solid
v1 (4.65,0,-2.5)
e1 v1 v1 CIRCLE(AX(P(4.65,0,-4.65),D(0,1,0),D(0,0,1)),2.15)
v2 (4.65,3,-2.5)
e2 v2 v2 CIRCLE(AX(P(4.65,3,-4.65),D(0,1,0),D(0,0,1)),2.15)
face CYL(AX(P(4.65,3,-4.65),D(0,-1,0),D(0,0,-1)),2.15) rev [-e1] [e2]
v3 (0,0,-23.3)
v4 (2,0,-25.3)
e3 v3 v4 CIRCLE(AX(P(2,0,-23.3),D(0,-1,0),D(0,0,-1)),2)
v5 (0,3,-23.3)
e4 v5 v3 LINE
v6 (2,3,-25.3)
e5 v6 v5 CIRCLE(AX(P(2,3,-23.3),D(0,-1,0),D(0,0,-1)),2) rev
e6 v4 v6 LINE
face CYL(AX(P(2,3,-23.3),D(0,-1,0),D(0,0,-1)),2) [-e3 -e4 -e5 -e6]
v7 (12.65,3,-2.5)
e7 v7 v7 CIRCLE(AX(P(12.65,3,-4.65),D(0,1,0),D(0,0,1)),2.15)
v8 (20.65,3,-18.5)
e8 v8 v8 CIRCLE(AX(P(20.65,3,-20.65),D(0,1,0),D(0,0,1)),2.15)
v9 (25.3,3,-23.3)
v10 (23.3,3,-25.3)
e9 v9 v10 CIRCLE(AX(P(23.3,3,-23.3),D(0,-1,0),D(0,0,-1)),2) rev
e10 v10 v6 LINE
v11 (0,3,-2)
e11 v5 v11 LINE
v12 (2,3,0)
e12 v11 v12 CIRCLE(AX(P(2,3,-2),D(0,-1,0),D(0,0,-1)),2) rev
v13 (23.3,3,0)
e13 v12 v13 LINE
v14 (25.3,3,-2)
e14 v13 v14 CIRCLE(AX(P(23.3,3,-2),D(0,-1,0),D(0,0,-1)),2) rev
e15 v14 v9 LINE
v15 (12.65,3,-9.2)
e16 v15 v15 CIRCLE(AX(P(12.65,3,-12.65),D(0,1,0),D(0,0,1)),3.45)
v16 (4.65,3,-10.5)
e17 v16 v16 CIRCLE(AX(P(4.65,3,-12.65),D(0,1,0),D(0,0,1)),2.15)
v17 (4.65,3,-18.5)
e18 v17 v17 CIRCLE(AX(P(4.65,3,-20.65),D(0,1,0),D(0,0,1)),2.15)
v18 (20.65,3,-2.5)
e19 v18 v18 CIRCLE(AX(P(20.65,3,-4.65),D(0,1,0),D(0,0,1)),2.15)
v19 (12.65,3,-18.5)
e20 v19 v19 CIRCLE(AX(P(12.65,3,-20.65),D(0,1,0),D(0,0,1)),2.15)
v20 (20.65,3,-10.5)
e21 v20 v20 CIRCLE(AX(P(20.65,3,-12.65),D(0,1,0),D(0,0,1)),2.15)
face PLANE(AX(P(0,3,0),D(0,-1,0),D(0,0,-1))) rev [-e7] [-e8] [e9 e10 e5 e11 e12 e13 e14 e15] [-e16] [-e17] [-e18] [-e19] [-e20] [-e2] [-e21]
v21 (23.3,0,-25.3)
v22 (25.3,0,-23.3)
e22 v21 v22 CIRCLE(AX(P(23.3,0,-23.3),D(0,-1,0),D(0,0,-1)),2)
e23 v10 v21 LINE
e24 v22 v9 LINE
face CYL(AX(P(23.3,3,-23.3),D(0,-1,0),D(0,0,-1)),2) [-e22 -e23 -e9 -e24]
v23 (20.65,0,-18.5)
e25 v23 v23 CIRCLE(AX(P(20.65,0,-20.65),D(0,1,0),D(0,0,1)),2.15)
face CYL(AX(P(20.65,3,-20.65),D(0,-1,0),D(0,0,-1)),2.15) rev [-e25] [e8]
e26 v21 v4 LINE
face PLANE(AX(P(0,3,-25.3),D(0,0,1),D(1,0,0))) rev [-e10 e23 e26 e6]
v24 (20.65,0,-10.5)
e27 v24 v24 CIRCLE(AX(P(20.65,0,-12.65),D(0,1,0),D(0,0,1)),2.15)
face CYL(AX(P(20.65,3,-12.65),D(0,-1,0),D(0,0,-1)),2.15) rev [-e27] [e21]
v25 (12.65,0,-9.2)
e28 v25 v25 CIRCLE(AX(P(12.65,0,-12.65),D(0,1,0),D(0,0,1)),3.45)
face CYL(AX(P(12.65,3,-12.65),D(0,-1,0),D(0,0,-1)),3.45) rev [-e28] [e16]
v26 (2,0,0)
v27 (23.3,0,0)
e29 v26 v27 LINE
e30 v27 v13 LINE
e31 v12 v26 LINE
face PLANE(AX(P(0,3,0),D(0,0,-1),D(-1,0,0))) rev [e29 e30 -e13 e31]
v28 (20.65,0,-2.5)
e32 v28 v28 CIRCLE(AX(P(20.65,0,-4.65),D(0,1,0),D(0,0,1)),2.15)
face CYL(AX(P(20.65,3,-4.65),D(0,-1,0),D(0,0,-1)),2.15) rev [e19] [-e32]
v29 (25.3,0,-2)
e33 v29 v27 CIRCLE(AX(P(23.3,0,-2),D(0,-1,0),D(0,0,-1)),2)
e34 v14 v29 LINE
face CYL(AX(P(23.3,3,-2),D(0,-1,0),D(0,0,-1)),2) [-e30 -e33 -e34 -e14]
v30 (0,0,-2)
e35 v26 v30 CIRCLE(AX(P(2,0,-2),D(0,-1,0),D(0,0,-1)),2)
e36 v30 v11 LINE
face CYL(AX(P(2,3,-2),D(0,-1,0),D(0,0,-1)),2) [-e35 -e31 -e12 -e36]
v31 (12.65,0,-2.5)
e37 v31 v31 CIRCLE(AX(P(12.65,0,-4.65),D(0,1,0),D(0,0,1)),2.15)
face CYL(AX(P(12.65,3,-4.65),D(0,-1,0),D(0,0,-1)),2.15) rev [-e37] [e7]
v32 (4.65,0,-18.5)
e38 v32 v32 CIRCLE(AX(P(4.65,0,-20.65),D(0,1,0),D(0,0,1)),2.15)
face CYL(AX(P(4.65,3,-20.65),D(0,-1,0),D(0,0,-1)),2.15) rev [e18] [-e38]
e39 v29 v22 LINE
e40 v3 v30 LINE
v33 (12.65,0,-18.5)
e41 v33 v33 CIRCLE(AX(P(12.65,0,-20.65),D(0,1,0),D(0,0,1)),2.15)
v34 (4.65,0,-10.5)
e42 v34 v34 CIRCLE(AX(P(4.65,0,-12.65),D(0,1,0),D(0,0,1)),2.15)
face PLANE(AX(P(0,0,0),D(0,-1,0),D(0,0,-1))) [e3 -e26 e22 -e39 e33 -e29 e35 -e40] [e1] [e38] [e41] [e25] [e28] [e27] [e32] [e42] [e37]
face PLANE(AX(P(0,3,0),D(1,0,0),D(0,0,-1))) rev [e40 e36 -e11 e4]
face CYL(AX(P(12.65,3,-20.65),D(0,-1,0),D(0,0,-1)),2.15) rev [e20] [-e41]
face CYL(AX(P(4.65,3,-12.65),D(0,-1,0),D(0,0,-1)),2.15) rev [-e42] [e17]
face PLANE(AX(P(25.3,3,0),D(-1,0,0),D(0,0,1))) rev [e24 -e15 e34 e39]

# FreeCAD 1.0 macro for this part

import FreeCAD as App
import Part
import Sketcher
Q = App.Units.Quantity


def edges_at(feature, points):
    """Names of the edges that pass closest to the given points."""
    edges = feature.Shape.Edges
    near = lambda p: min(range(len(edges)), key=lambda i: edges[i].distToShape(Part.Vertex(*p))[0])
    return sorted({f"Edge{near(p) + 1}" for p in points})


def add_polygon(sketch, points):
    """Adds a closed chain of lines whose ends are joined by coincident constraints."""
    first, n = sketch.GeometryCount, len(points)
    for a, b in zip(points, points[1:] + points[:1]):
        sketch.addGeometry(Part.LineSegment(App.Vector(*a, 0), App.Vector(*b, 0)), False)
    for i in range(n):
        sketch.addConstraint(Sketcher.Constraint("Coincident", first + i, 2, first + (i + 1) % n, 1))

doc = App.newDocument("Part")
params = doc.addObject("Spreadsheet::Sheet", "Params")
for row, (alias, value) in enumerate([
    ("sketch1_diameter", "4.3 mm"),
    ("sketch1_diameter2", "6.9 mm"),
    ("sketch1_width", "25.3 mm"),
    ("pad1_length", "3 mm"),
    ("fillet_radius", "2 mm"),
], start=1):
    params.set(f"A{row}", alias)
    params.set(f"B{row}", "=" + value)
    params.setAlias(f"B{row}", alias)

body = doc.addObject("PartDesign::Body", "Body")

# Sketch on XZ plane
sketch1 = body.newObject("Sketcher::SketchObject", "Sketch")
sketch1.AttachmentSupport = (doc.getObject("XZ_Plane"), [""])
sketch1.MapMode = "FlatFace"
add_polygon(sketch1, [(0, -25.3), (0, 0), (25.3, 0), (25.3, -25.3)])  # lines 0-3
sketch1.addGeometry(Part.Circle(App.Vector(4.7, -4.7, 0), App.Vector(0, 0, 1), 2.1), False)  # 4
sketch1.addGeometry(Part.Circle(App.Vector(12.7, -4.7, 0), App.Vector(0, 0, 1), 2.1), False)  # 5
sketch1.addGeometry(Part.Circle(App.Vector(20.6, -4.7, 0), App.Vector(0, 0, 1), 2.1), False)  # 6
sketch1.addGeometry(Part.Circle(App.Vector(4.7, -12.7, 0), App.Vector(0, 0, 1), 2.1), False)  # 7
sketch1.addGeometry(Part.Circle(App.Vector(4.7, -20.6, 0), App.Vector(0, 0, 1), 2.1), False)  # 8
sketch1.addGeometry(Part.Circle(App.Vector(12.7, -12.7, 0), App.Vector(0, 0, 1), 3.5), False)  # 9
sketch1.addGeometry(Part.Circle(App.Vector(20.6, -12.7, 0), App.Vector(0, 0, 1), 2.1), False)  # 10
sketch1.addGeometry(Part.Circle(App.Vector(12.7, -20.6, 0), App.Vector(0, 0, 1), 2.1), False)  # 11
sketch1.addGeometry(Part.Circle(App.Vector(20.6, -20.6, 0), App.Vector(0, 0, 1), 2.1), False)  # 12
sketch1.addConstraint([
    Sketcher.Constraint("Vertical", 0),
    Sketcher.Constraint("Horizontal", 1),
    Sketcher.Constraint("Vertical", 2),
    Sketcher.Constraint("Horizontal", 3),
    Sketcher.Constraint("Coincident", 0, 2, -1, 1),
    Sketcher.Constraint("Equal", 4, 5),
    Sketcher.Constraint("Equal", 5, 6),
    Sketcher.Constraint("Equal", 6, 7),
    Sketcher.Constraint("Equal", 7, 8),
    Sketcher.Constraint("Equal", 8, 10),
    Sketcher.Constraint("Equal", 10, 11),
    Sketcher.Constraint("Equal", 11, 12),
    Sketcher.Constraint("Horizontal", 4, 3, 5, 3),
    Sketcher.Constraint("Horizontal", 5, 3, 6, 3),
    Sketcher.Constraint("Horizontal", 7, 3, 9, 3),
    Sketcher.Constraint("Horizontal", 9, 3, 10, 3),
    Sketcher.Constraint("Horizontal", 8, 3, 11, 3),
    Sketcher.Constraint("Horizontal", 11, 3, 12, 3),
    Sketcher.Constraint("Vertical", 4, 3, 7, 3),
    Sketcher.Constraint("Vertical", 7, 3, 8, 3),
    Sketcher.Constraint("Vertical", 5, 3, 9, 3),
    Sketcher.Constraint("Vertical", 6, 3, 10, 3),
    Sketcher.Constraint("Vertical", 9, 3, 11, 3),
    Sketcher.Constraint("Vertical", 10, 3, 12, 3),
    Sketcher.Constraint("Equal", 3, 0),
    Sketcher.Constraint("Diameter", 4, Q("4.3 mm")),
    Sketcher.Constraint("Diameter", 9, Q("6.9 mm")),
    Sketcher.Constraint("DistanceX", 1, 1, 1, 2, Q("25.3 mm")),
    Sketcher.Constraint("DistanceX", 4, 3, 5, 3, Q("8 mm")),
    Sketcher.Constraint("DistanceX", 5, 3, 6, 3, Q("8 mm")),
    Sketcher.Constraint("DistanceY", 7, 3, 4, 3, Q("8 mm")),
    Sketcher.Constraint("DistanceY", 8, 3, 7, 3, Q("8 mm")),
    Sketcher.Constraint("DistanceX", -1, 1, 4, 3, Q("4.65 mm")),
    Sketcher.Constraint("DistanceY", 4, 3, -1, 1, Q("4.65 mm")),
])
sketch1.setExpression("Constraints[29]", "Params.sketch1_diameter")
sketch1.setExpression("Constraints[30]", "Params.sketch1_diameter2")
sketch1.setExpression("Constraints[31]", "Params.sketch1_width")
pad1 = body.newObject("PartDesign::Pad", "Pad")
pad1.Profile = sketch1
pad1.setExpression("Length", "Params.pad1_length")
pad1.Reversed = True
doc.recompute()

fillet = body.newObject("PartDesign::Fillet", "Fillet")
fillet.Base = (pad1, edges_at(pad1, [
    (0, 1.5, -25.3),
    (25.3, 1.5, -25.3),
    (25.3, 1.5, 0),
    (0, 1.5, 0),
]))
fillet.setExpression("Radius", "Params.fillet_radius")

doc.recompute()
